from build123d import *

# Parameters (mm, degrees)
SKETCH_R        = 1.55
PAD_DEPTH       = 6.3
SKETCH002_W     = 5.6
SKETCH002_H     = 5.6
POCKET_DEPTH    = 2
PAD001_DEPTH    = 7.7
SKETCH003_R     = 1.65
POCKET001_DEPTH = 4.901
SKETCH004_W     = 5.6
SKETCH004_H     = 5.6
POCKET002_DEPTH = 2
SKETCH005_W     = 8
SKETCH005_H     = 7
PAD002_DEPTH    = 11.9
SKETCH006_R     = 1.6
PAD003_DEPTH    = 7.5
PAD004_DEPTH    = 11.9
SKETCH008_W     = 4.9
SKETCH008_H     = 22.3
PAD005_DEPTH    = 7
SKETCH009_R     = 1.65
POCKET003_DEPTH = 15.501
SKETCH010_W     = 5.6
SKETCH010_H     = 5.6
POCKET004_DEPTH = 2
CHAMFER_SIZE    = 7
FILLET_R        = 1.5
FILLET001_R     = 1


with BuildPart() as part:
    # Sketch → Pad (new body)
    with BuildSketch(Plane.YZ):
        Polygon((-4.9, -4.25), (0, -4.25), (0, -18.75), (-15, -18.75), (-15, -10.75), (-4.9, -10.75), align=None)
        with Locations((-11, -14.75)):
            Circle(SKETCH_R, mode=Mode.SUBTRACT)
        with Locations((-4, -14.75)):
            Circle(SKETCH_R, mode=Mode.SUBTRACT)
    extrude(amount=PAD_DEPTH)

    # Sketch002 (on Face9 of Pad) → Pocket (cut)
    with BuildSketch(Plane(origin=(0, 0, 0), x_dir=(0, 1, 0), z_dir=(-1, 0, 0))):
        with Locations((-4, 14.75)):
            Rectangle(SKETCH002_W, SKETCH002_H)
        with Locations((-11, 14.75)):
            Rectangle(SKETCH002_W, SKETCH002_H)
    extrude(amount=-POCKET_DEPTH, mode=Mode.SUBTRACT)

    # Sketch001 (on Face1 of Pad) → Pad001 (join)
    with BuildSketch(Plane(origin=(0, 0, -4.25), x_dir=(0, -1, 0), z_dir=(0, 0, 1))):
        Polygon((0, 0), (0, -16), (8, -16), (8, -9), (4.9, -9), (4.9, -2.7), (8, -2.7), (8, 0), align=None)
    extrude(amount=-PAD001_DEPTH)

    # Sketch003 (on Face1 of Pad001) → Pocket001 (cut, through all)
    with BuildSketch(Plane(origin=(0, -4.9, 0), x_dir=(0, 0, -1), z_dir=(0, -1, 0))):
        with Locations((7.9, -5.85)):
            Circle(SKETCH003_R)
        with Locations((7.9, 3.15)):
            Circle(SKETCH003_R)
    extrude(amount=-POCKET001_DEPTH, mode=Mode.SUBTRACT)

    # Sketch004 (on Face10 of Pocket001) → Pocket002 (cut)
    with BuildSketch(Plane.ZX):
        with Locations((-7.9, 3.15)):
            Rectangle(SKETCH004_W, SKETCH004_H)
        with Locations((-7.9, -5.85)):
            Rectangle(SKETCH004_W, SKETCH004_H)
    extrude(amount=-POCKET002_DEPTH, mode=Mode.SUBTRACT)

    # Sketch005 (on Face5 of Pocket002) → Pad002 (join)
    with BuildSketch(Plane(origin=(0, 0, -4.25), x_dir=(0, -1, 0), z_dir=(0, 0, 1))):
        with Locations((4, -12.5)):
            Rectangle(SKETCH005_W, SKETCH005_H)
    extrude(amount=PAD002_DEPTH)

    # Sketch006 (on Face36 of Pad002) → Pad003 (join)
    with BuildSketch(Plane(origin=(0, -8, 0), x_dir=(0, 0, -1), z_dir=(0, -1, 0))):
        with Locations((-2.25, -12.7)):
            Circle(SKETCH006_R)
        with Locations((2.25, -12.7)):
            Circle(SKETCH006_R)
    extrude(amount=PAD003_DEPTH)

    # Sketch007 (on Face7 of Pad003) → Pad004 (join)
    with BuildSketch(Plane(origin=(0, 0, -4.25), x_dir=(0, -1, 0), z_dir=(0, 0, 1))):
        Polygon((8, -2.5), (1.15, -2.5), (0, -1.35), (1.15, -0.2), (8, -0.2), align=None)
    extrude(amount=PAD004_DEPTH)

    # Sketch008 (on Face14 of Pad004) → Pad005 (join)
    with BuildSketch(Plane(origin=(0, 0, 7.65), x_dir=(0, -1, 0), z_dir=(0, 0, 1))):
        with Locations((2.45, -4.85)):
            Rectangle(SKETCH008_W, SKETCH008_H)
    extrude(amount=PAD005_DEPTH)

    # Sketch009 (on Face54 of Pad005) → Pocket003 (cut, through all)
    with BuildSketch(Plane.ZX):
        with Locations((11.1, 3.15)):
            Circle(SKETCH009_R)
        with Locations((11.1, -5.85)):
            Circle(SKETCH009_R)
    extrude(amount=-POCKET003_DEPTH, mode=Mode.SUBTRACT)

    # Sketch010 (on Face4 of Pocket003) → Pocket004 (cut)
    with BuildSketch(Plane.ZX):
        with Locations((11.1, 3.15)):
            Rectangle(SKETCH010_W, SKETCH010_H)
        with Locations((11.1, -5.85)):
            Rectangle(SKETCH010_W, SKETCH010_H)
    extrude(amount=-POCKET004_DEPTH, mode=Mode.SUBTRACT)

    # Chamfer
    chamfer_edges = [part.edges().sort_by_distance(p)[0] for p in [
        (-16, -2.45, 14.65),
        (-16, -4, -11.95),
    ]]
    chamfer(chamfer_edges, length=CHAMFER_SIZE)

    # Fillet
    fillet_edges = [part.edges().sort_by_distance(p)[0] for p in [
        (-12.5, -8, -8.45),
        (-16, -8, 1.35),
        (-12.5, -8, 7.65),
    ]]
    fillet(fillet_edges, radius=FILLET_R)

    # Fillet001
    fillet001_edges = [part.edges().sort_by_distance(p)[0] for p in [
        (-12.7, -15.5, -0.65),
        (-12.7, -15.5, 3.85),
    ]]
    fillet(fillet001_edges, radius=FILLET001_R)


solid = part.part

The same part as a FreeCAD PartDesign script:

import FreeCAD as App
import Part
import Sketcher
Q = App.Units.Quantity


def edges_at(feature, points):
    """Names of the edges that pass closest to the given points."""
    edges = feature.Shape.Edges
    near = lambda p: min(range(len(edges)), key=lambda i: edges[i].distToShape(Part.Vertex(*p))[0])
    return sorted({f"Edge{near(p) + 1}" for p in points})


def add_polygon(sketch, points):
    """Adds a closed chain of lines whose ends are joined by coincident constraints."""
    first, n = sketch.GeometryCount, len(points)
    for a, b in zip(points, points[1:] + points[:1]):
        sketch.addGeometry(Part.LineSegment(App.Vector(*a, 0), App.Vector(*b, 0)), False)
    for i in range(n):
        sketch.addConstraint(Sketcher.Constraint("Coincident", first + i, 2, first + (i + 1) % n, 1))

doc = App.newDocument("Part")
body = doc.addObject("PartDesign::Body", "Body")

sketch1 = body.newObject("Sketcher::SketchObject", "Sketch")
sketch1.AttachmentSupport = (doc.getObject("YZ_Plane"), [""])
sketch1.MapMode = "FlatFace"
add_polygon(sketch1, [(0, -4.25), (-4.9, -4.25), (-4.9, -10.75), (-15, -10.75), (-15, -18.75), (0, -18.75)])
sketch1.addGeometry(Part.Circle(App.Vector(-4, -14.75, 0), App.Vector(0, 0, 1), 1.55), False)
sketch1.addGeometry(Part.Circle(App.Vector(-11, -14.75, 0), App.Vector(0, 0, 1), 1.55), False)
sketch1.addConstraint([
    Sketcher.Constraint("Horizontal", 0),
    Sketcher.Constraint("Vertical", 1),
    Sketcher.Constraint("Horizontal", 2),
    Sketcher.Constraint("Vertical", 3),
    Sketcher.Constraint("Horizontal", 4),
    Sketcher.Constraint("Vertical", 5),
    Sketcher.Constraint("Equal", 6, 7),
    Sketcher.Constraint("PointOnObject", 4, 2, -2),
    Sketcher.Constraint("Horizontal", 6, 3, 7, 3),
    Sketcher.Constraint("Diameter", 6, Q("3.1 mm")),
    Sketcher.Constraint("DistanceX", 4, 1, 4, 2, Q("15 mm")),
    Sketcher.Constraint("DistanceY", 3, 2, 3, 1, Q("8 mm")),
    Sketcher.Constraint("DistanceX", 0, 2, 0, 1, Q("4.9 mm")),
    Sketcher.Constraint("DistanceY", 1, 2, 1, 1, Q("6.5 mm")),
    Sketcher.Constraint("DistanceX", 6, 3, -1, 1, Q("4 mm")),
    Sketcher.Constraint("DistanceX", 7, 3, -1, 1, Q("11 mm")),
    Sketcher.Constraint("DistanceY", 6, 3, 1, 2, Q("4 mm")),
    Sketcher.Constraint("DistanceY", 6, 3, -1, 1, Q("14.75 mm")),
])
pad1 = body.newObject("PartDesign::Pad", "Pad")
pad1.Profile = sketch1
pad1.Length = 6.3

sketch2 = body.newObject("Sketcher::SketchObject", "Sketch001")
sketch2.AttachmentSupport = (doc.getObject("YZ_Plane"), [""])
sketch2.MapMode = "FlatFace"
add_polygon(sketch2, [(-6.8, -17.55), (-6.8, -11.95), (-1.2, -11.95), (-1.2, -17.55)])
add_polygon(sketch2, [(-13.8, -17.55), (-13.8, -11.95), (-8.2, -11.95), (-8.2, -17.55)])
sketch2.addConstraint([
    Sketcher.Constraint("Vertical", 0),
    Sketcher.Constraint("Horizontal", 1),
    Sketcher.Constraint("Vertical", 2),
    Sketcher.Constraint("Horizontal", 3),
    Sketcher.Constraint("Vertical", 4),
    Sketcher.Constraint("Horizontal", 5),
    Sketcher.Constraint("Vertical", 6),
    Sketcher.Constraint("Horizontal", 7),
    Sketcher.Constraint("Horizontal", 1, 2, 4, 2),
    Sketcher.Constraint("Horizontal", 3, 2, 6, 2),
    Sketcher.Constraint("Equal", 3, 5),
    Sketcher.Constraint("Equal", 7, 0),
    Sketcher.Constraint("DistanceX", 1, 1, 1, 2, Q("5.6 mm")),
    Sketcher.Constraint("DistanceX", 4, 2, 0, 2, Q("7 mm")),
    Sketcher.Constraint("DistanceX", 0, 2, -1, 1, Q("6.8 mm")),
    Sketcher.Constraint("DistanceY", 0, 2, -1, 1, Q("11.95 mm")),
])
pocket1 = body.newObject("PartDesign::Pocket", "Pocket")
pocket1.Profile = sketch2
pocket1.Length = 2
pocket1.Reversed = True

sketch3 = body.newObject("Sketcher::SketchObject", "Sketch002")
sketch3.AttachmentSupport = (doc.getObject("XY_Plane"), [""])
sketch3.MapMode = "FlatFace"
sketch3.AttachmentOffset = App.Placement(App.Vector(0, 0, -4.25), App.Rotation())
add_polygon(sketch3, [(0, 0), (-16, 0), (-16, -8), (-9, -8), (-9, -4.9), (-2.7, -4.9), (-2.7, -8), (0, -8)])
sketch3.addConstraint([
    Sketcher.Constraint("Horizontal", 0),
    Sketcher.Constraint("Vertical", 1),
    Sketcher.Constraint("Horizontal", 2),
    Sketcher.Constraint("Vertical", 3),
    Sketcher.Constraint("Horizontal", 4),
    Sketcher.Constraint("Vertical", 5),
    Sketcher.Constraint("Horizontal", 6),
    Sketcher.Constraint("Vertical", 7),
    Sketcher.Constraint("Coincident", 7, 2, -1, 1),
    Sketcher.Constraint("Horizontal", 2, 2, 5, 2),
    Sketcher.Constraint("DistanceX", 0, 2, 0, 1, Q("16 mm")),
    Sketcher.Constraint("DistanceX", 2, 1, 2, 2, Q("7 mm")),
    Sketcher.Constraint("DistanceY", 1, 2, 1, 1, Q("8 mm")),
    Sketcher.Constraint("DistanceX", 4, 1, 4, 2, Q("6.3 mm")),
    Sketcher.Constraint("DistanceY", 3, 1, 3, 2, Q("3.1 mm")),
])
pad2 = body.newObject("PartDesign::Pad", "Pad001")
pad2.Profile = sketch3
pad2.Length = 7.7
pad2.Reversed = True

sketch4 = body.newObject("Sketcher::SketchObject", "Sketch003")
sketch4.AttachmentSupport = (doc.getObject("XZ_Plane"), [""])
sketch4.MapMode = "FlatFace"
sketch4.AttachmentOffset = App.Placement(App.Vector(0, 0, 4.9), App.Rotation())
sketch4.addGeometry([
    Part.Circle(App.Vector(-5.85, -7.9, 0), App.Vector(0, 0, 1), 1.65),
    Part.Circle(App.Vector(3.15, -7.9, 0), App.Vector(0, 0, 1), 1.65),
], False)
sketch4.addConstraint([
    Sketcher.Constraint("Equal", 0, 1),
    Sketcher.Constraint("Horizontal", 0, 3, 1, 3),
    Sketcher.Constraint("Diameter", 0, Q("3.3 mm")),
    Sketcher.Constraint("DistanceX", 0, 3, 1, 3, Q("9 mm")),
    Sketcher.Constraint("DistanceY", 0, 3, -1, 1, Q("7.9 mm")),
    Sketcher.Constraint("DistanceX", 0, 3, -1, 1, Q("5.85 mm")),
])
pocket2 = body.newObject("PartDesign::Pocket", "Pocket001")
pocket2.Profile = sketch4
pocket2.Type = "ThroughAll"

sketch5 = body.newObject("Sketcher::SketchObject", "Sketch004")
sketch5.AttachmentSupport = (doc.getObject("XZ_Plane"), [""])
sketch5.MapMode = "FlatFace"
add_polygon(sketch5, [(5.95, -10.7), (0.35, -10.7), (0.35, -5.1), (5.95, -5.1)])
add_polygon(sketch5, [(-3.05, -10.7), (-8.65, -10.7), (-8.65, -5.1), (-3.05, -5.1)])
sketch5.addConstraint([
    Sketcher.Constraint("Horizontal", 0),
    Sketcher.Constraint("Vertical", 1),
    Sketcher.Constraint("Horizontal", 2),
    Sketcher.Constraint("Vertical", 3),
    Sketcher.Constraint("Horizontal", 4),
    Sketcher.Constraint("Vertical", 5),
    Sketcher.Constraint("Horizontal", 6),
    Sketcher.Constraint("Vertical", 7),
    Sketcher.Constraint("Horizontal", 3, 2, 4, 2),
    Sketcher.Constraint("Horizontal", 2, 2, 5, 2),
    Sketcher.Constraint("Equal", 2, 4),
    Sketcher.Constraint("Equal", 6, 1),
    Sketcher.Constraint("DistanceX", 0, 2, 0, 1, Q("5.6 mm")),
    Sketcher.Constraint("DistanceX", 4, 2, 0, 2, Q("9 mm")),
    Sketcher.Constraint("DistanceY", 0, 2, -1, 1, Q("10.7 mm")),
    Sketcher.Constraint("DistanceX", -1, 1, 0, 2, Q("0.35 mm")),
])
pocket3 = body.newObject("PartDesign::Pocket", "Pocket002")
pocket3.Profile = sketch5
pocket3.Length = 2
pocket3.Reversed = True

sketch6 = body.newObject("Sketcher::SketchObject", "Sketch005")
sketch6.AttachmentSupport = (doc.getObject("XY_Plane"), [""])
sketch6.MapMode = "FlatFace"
sketch6.AttachmentOffset = App.Placement(App.Vector(0, 0, -4.25), App.Rotation())
add_polygon(sketch6, [(-9, 0), (-16, 0), (-16, -8), (-9, -8)])
sketch6.addConstraint([
    Sketcher.Constraint("Horizontal", 0),
    Sketcher.Constraint("Vertical", 1),
    Sketcher.Constraint("Horizontal", 2),
    Sketcher.Constraint("Vertical", 3),
    Sketcher.Constraint("PointOnObject", 0, 2, -1),
    Sketcher.Constraint("DistanceX", 0, 2, 0, 1, Q("7 mm")),
    Sketcher.Constraint("DistanceY", 1, 2, 1, 1, Q("8 mm")),
    Sketcher.Constraint("DistanceX", 0, 2, -1, 1, Q("16 mm")),
])
pad3 = body.newObject("PartDesign::Pad", "Pad002")
pad3.Profile = sketch6
pad3.Length = 11.9

sketch7 = body.newObject("Sketcher::SketchObject", "Sketch006")
sketch7.AttachmentSupport = (doc.getObject("XZ_Plane"), [""])
sketch7.MapMode = "FlatFace"
sketch7.AttachmentOffset = App.Placement(App.Vector(0, 0, 8), App.Rotation())
sketch7.addGeometry([
    Part.Circle(App.Vector(-12.7, 2.25, 0), App.Vector(0, 0, 1), 1.6),
    Part.Circle(App.Vector(-12.7, -2.25, 0), App.Vector(0, 0, 1), 1.6),
], False)
sketch7.addConstraint([
    Sketcher.Constraint("Equal", 0, 1),
    Sketcher.Constraint("Symmetric", 0, 3, 1, 3, -1),
    Sketcher.Constraint("Diameter", 0, Q("3.2 mm")),
    Sketcher.Constraint("DistanceX", 0, 3, -1, 1, Q("12.7 mm")),
    Sketcher.Constraint("DistanceY", 1, 3, 0, 3, Q("4.5 mm")),
])
pad4 = body.newObject("PartDesign::Pad", "Pad003")
pad4.Profile = sketch7
pad4.Length = 7.5

sketch8 = body.newObject("Sketcher::SketchObject", "Sketch007")
sketch8.AttachmentSupport = (doc.getObject("XY_Plane"), [""])
sketch8.MapMode = "FlatFace"
sketch8.AttachmentOffset = App.Placement(App.Vector(0, 0, -4.25), App.Rotation())
add_polygon(sketch8, [(-2.5, -1.15), (-2.5, -8), (-0.2, -8), (-0.2, -1.15), (-1.35, 0)])
sketch8.addConstraint([
    Sketcher.Constraint("Vertical", 0),
    Sketcher.Constraint("Horizontal", 1),
    Sketcher.Constraint("Vertical", 2),
    Sketcher.Constraint("PointOnObject", 3, 2, -1),
    Sketcher.Constraint("Perpendicular", 3, 4),
    Sketcher.Constraint("Horizontal", 2, 2, 4, 2),
    Sketcher.Constraint("Equal", 3, 4),
    Sketcher.Constraint("DistanceX", 1, 1, 1, 2, Q("2.3 mm")),
    Sketcher.Constraint("DistanceY", 0, 2, -1, 1, Q("8 mm")),
    Sketcher.Constraint("DistanceX", 0, 2, -1, 1, Q("2.5 mm")),
])
pad5 = body.newObject("PartDesign::Pad", "Pad004")
pad5.Profile = sketch8
pad5.Length = 11.9

sketch9 = body.newObject("Sketcher::SketchObject", "Sketch008")
sketch9.AttachmentSupport = (doc.getObject("XY_Plane"), [""])
sketch9.MapMode = "FlatFace"
sketch9.AttachmentOffset = App.Placement(App.Vector(0, 0, 7.65), App.Rotation())
add_polygon(sketch9, [(6.3, 0), (-16, 0), (-16, -4.9), (6.3, -4.9)])
sketch9.addConstraint([
    Sketcher.Constraint("Horizontal", 0),
    Sketcher.Constraint("Vertical", 1),
    Sketcher.Constraint("Horizontal", 2),
    Sketcher.Constraint("Vertical", 3),
    Sketcher.Constraint("PointOnObject", 0, 2, -1),
    Sketcher.Constraint("DistanceX", 0, 2, 0, 1, Q("22.3 mm")),
    Sketcher.Constraint("DistanceY", 1, 2, 1, 1, Q("4.9 mm")),
    Sketcher.Constraint("DistanceX", 0, 2, -1, 1, Q("16 mm")),
])
pad6 = body.newObject("PartDesign::Pad", "Pad005")
pad6.Profile = sketch9
pad6.Length = 7

sketch10 = body.newObject("Sketcher::SketchObject", "Sketch009")
sketch10.AttachmentSupport = (doc.getObject("XZ_Plane"), [""])
sketch10.MapMode = "FlatFace"
sketch10.addGeometry([
    Part.Circle(App.Vector(3.15, 11.1, 0), App.Vector(0, 0, 1), 1.65),
    Part.Circle(App.Vector(-5.85, 11.1, 0), App.Vector(0, 0, 1), 1.65),
], False)
sketch10.addConstraint([
    Sketcher.Constraint("Equal", 0, 1),
    Sketcher.Constraint("Horizontal", 0, 3, 1, 3),
    Sketcher.Constraint("Diameter", 0, Q("3.3 mm")),
    Sketcher.Constraint("DistanceX", 1, 3, 0, 3, Q("9 mm")),
    Sketcher.Constraint("DistanceY", -1, 1, 0, 3, Q("11.1 mm")),
    Sketcher.Constraint("DistanceX", -1, 1, 0, 3, Q("3.15 mm")),
])
pocket4 = body.newObject("PartDesign::Pocket", "Pocket003")
pocket4.Profile = sketch10
pocket4.Type = "ThroughAll"
pocket4.Reversed = True

sketch11 = body.newObject("Sketcher::SketchObject", "Sketch010")
sketch11.AttachmentSupport = (doc.getObject("XZ_Plane"), [""])
sketch11.MapMode = "FlatFace"
add_polygon(sketch11, [(5.95, 8.3), (0.35, 8.3), (0.35, 13.9), (5.95, 13.9)])
add_polygon(sketch11, [(-3.05, 8.3), (-8.65, 8.3), (-8.65, 13.9), (-3.05, 13.9)])
sketch11.addConstraint([
    Sketcher.Constraint("Horizontal", 0),
    Sketcher.Constraint("Vertical", 1),
    Sketcher.Constraint("Horizontal", 2),
    Sketcher.Constraint("Vertical", 3),
    Sketcher.Constraint("Horizontal", 4),
    Sketcher.Constraint("Vertical", 5),
    Sketcher.Constraint("Horizontal", 6),
    Sketcher.Constraint("Vertical", 7),
    Sketcher.Constraint("Horizontal", 3, 2, 4, 2),
    Sketcher.Constraint("Horizontal", 2, 2, 5, 2),
    Sketcher.Constraint("Equal", 2, 4),
    Sketcher.Constraint("Equal", 6, 1),
    Sketcher.Constraint("DistanceX", 0, 2, 0, 1, Q("5.6 mm")),
    Sketcher.Constraint("DistanceX", 4, 2, 0, 2, Q("9 mm")),
    Sketcher.Constraint("DistanceY", -1, 1, 0, 2, Q("8.3 mm")),
    Sketcher.Constraint("DistanceX", -1, 1, 0, 2, Q("0.35 mm")),
])
pocket5 = body.newObject("PartDesign::Pocket", "Pocket004")
pocket5.Profile = sketch11
pocket5.Length = 2
pocket5.Reversed = True
doc.recompute()

chamfer = body.newObject("PartDesign::Chamfer", "Chamfer")
chamfer.Base = (pocket5, edges_at(pocket5, [(-16, -2.45, 14.65), (-16, -4, -11.95)]))
chamfer.Size = 7
doc.recompute()

fillet = body.newObject("PartDesign::Fillet", "Fillet")
fillet.Base = (chamfer, edges_at(chamfer, [(-12.5, -8, -8.45), (-16, -8, 1.35), (-12.5, -8, 7.65)]))
fillet.Radius = 1.5
doc.recompute()

fillet2 = body.newObject("PartDesign::Fillet", "Fillet001")
fillet2.Base = (fillet, edges_at(fillet, [(-12.7, -15.5, -0.65), (-12.7, -15.5, 3.85)]))
fillet2.Radius = 1

doc.recompute()
